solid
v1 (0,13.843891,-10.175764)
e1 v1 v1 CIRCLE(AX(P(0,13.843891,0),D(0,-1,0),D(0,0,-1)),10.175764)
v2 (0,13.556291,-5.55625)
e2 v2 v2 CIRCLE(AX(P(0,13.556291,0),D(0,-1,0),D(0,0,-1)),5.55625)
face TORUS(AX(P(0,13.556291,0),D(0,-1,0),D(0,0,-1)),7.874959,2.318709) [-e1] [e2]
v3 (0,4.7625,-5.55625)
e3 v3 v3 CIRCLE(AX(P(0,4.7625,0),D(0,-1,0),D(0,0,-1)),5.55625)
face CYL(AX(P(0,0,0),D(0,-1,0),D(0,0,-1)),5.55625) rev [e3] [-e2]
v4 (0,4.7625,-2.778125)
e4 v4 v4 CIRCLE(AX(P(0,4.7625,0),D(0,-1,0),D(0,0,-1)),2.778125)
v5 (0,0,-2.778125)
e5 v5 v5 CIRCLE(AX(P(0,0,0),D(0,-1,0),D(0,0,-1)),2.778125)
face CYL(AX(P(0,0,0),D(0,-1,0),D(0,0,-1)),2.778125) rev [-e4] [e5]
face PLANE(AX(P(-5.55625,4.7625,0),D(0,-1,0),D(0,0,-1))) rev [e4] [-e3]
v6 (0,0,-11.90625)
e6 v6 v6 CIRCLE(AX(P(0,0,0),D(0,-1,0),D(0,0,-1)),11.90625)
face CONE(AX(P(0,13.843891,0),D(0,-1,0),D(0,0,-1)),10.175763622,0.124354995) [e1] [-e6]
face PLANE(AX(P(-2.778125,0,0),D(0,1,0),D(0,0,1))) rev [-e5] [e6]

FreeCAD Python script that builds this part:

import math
import FreeCAD as App
import Part
import Sketcher
from FreeCAD import Vector
Q = App.Units.Quantity

doc = App.newDocument("Part")
body = doc.addObject("PartDesign::Body", "Body")

sketch1 = doc.addObject("Sketcher::SketchObject", "Sketch")
body.addObject(sketch1)
sketch1.AttachmentSupport = (doc.XY_Plane, [""])
sketch1.MapMode = "FlatFace"
sketch1.addGeometry([
    Part.LineSegment(Vector(-2.8, 4.8, 0), Vector(-5.6, 4.8, 0)),
    Part.LineSegment(Vector(-5.6, 4.8, 0), Vector(-5.6, 13.6, 0)),
    Part.ArcOfCircle(Part.Circle(Vector(-7.9, 13.6, 0), Vector(0, 0, 1), 2.3), math.radians(0), math.radians(173)),
    Part.LineSegment(Vector(-10.2, 13.8, 0), Vector(-11.9, 0, 0)),
    Part.LineSegment(Vector(-11.9, 0, 0), Vector(-2.8, 0, 0)),
    Part.LineSegment(Vector(-2.8, 0, 0), Vector(-2.8, 4.8, 0)),
], False)
sketch1.addConstraint([
    Sketcher.Constraint("Coincident", 0, 2, 1, 1),
    Sketcher.Constraint("Tangent", 1, 2, 2, 1),
    Sketcher.Constraint("Tangent", 2, 2, 3, 1),
    Sketcher.Constraint("Coincident", 3, 2, 4, 1),
    Sketcher.Constraint("Coincident", 4, 2, 5, 1),
    Sketcher.Constraint("Coincident", 5, 2, 0, 1),
    Sketcher.Constraint("Horizontal", 0),
    Sketcher.Constraint("Vertical", 1),
    Sketcher.Constraint("Horizontal", 4),
    Sketcher.Constraint("Vertical", 5),
    Sketcher.Constraint("PointOnObject", 3, 2, -1),
    Sketcher.Constraint("DistanceX", 0, 2, 0, 1, Q("0.109375 in")),
    Sketcher.Constraint("DistanceX", 4, 1, 4, 2, Q("0.359375 in")),
    Sketcher.Constraint("DistanceY", 5, 1, 5, 2, Q("0.1875 in")),
    Sketcher.Constraint("DistanceX", 0, 2, -1, 1, Q("0.21875 in")),
    Sketcher.Constraint("Radius", 2, 2.318709),
    Sketcher.Constraint("DistanceY", 1, 1, 1, 2, 8.793791),
])
revolution = doc.addObject("PartDesign::Revolution", "Revolution")
body.addObject(revolution)
revolution.Profile = sketch1
revolution.ReferenceAxis = (sketch1, ["V_Axis"])
revolution.Angle = 360

doc.recompute()
